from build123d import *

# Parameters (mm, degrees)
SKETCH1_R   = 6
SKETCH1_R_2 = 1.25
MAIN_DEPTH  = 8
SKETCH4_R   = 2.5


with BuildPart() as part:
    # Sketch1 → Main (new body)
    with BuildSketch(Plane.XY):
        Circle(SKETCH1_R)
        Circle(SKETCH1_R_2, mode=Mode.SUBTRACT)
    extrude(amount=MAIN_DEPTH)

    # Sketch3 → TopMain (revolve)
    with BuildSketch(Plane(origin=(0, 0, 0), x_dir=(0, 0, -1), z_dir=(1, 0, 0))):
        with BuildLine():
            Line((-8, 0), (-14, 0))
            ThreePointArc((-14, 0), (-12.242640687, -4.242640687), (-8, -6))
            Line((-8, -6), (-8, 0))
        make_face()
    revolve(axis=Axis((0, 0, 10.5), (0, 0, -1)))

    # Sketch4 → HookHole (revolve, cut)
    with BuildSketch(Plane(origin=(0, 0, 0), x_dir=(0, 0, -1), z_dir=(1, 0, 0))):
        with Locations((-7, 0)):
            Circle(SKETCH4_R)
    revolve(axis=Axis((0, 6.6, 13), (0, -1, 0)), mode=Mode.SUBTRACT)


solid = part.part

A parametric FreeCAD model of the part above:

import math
import FreeCAD as App
import Part
import Sketcher
from FreeCAD import Vector

doc = App.newDocument("Part")
params = doc.addObject("Spreadsheet::Sheet", "Params")
for row, (alias, value) in enumerate([
    ("sketch1_diameter", "12 mm"),
    ("sketch1_diameter2", "2.5 mm"),
    ("pad1_length", "8 mm"),
    ("sketch2_radius", "6 mm"),
    ("revolution_angle", "360 deg"),
    ("sketch3_diameter", "5 mm"),
    ("sketch3_width", "10 mm"),
    ("groove_angle", "360 deg"),
], start=1):
    params.set(f"A{row}", alias)
    params.set(f"B{row}", "=" + value)
    params.setAlias(f"B{row}", alias)

body = doc.addObject("PartDesign::Body", "Body")

sketch1 = body.newObject("Sketcher::SketchObject", "Sketch")
sketch1.AttachmentSupport = (doc.getObject("XY_Plane"), [""])
sketch1.MapMode = "FlatFace"
sketch1.addGeometry(Part.Circle(Vector(0, 0, 0), Vector(0, 0, 1), 6), False)
sketch1.addGeometry(Part.Circle(Vector(0, 0, 0), Vector(0, 0, 1), 1.25), False)
sketch1.addConstraint(Sketcher.Constraint("Coincident", 0, 3, -1, 1))
sketch1.addConstraint(Sketcher.Constraint("Coincident", 1, 3, -1, 1))
sketch1.addConstraint(Sketcher.Constraint("Diameter", 0, 12.0))
sketch1.addConstraint(Sketcher.Constraint("Diameter", 1, 2.5))
sketch1.setExpression("Constraints[2]", "Params.sketch1_diameter")
sketch1.setExpression("Constraints[3]", "Params.sketch1_diameter2")
pad1 = body.newObject("PartDesign::Pad", "Pad")
pad1.Profile = sketch1
pad1.setExpression("Length", "Params.pad1_length")

sketch2 = body.newObject("Sketcher::SketchObject", "Sketch001")
sketch2.AttachmentSupport = (doc.getObject("YZ_Plane"), [""])
sketch2.MapMode = "FlatFace"
sketch2.addGeometry(Part.LineSegment(Vector(0, 8, 0), Vector(0, 14, 0)), False)
sketch2.addGeometry(Part.ArcOfCircle(Part.Circle(Vector(0, 8, 0), Vector(0, 0, 1), 6), math.radians(90), math.radians(180)), False)
sketch2.addGeometry(Part.LineSegment(Vector(-6, 8, 0), Vector(0, 8, 0)), False)
sketch2.addConstraint(Sketcher.Constraint("Coincident", 0, 2, 1, 1))
sketch2.addConstraint(Sketcher.Constraint("Coincident", 1, 2, 2, 1))
sketch2.addConstraint(Sketcher.Constraint("Coincident", 2, 2, 0, 1))
sketch2.addConstraint(Sketcher.Constraint("Vertical", 0))
sketch2.addConstraint(Sketcher.Constraint("Horizontal", 2))
sketch2.addConstraint(Sketcher.Constraint("Coincident", 2, 2, 1, 3))
sketch2.addConstraint(Sketcher.Constraint("PointOnObject", 1, 3, -2))
sketch2.addConstraint(Sketcher.Constraint("Radius", 1, 6.0))
sketch2.addConstraint(Sketcher.Constraint("DistanceY", -1, 1, 1, 3, 8.0))
sketch2.setExpression("Constraints[7]", "Params.sketch2_radius")
revolution = body.newObject("PartDesign::Revolution", "Revolution")
revolution.Profile = sketch2
revolution.ReferenceAxis = (sketch2, ["V_Axis"])
revolution.setExpression("Angle", "Params.revolution_angle")

sketch3 = body.newObject("Sketcher::SketchObject", "Sketch002")
sketch3.AttachmentSupport = (doc.getObject("YZ_Plane"), [""])
sketch3.MapMode = "FlatFace"
sketch3.addGeometry(Part.Circle(Vector(0, 7, 0), Vector(0, 0, 1), 2.5), False)
sketch3.addGeometry(Part.LineSegment(Vector(0, 13, 0), Vector(-10, 13, 0)), True)
sketch3.addConstraint(Sketcher.Constraint("Horizontal", 1))
sketch3.addConstraint(Sketcher.Constraint("PointOnObject", 0, 3, -2))
sketch3.addConstraint(Sketcher.Constraint("PointOnObject", 1, 1, -2))
sketch3.addConstraint(Sketcher.Constraint("Diameter", 0, 5.0))
sketch3.addConstraint(Sketcher.Constraint("DistanceX", 1, 2, 1, 1, 10.0))
sketch3.addConstraint(Sketcher.Constraint("DistanceY", -1, 1, 0, 3, 7.0))
sketch3.addConstraint(Sketcher.Constraint("DistanceY", -1, 1, 1, 1, 13.0))
sketch3.setExpression("Constraints[3]", "Params.sketch3_diameter")
sketch3.setExpression("Constraints[4]", "Params.sketch3_width")
groove = body.newObject("PartDesign::Groove", "Groove")
groove.Profile = sketch3
groove.ReferenceAxis = (sketch3, ["Axis0"])
groove.setExpression("Angle", "Params.groove_angle")

doc.recompute()
